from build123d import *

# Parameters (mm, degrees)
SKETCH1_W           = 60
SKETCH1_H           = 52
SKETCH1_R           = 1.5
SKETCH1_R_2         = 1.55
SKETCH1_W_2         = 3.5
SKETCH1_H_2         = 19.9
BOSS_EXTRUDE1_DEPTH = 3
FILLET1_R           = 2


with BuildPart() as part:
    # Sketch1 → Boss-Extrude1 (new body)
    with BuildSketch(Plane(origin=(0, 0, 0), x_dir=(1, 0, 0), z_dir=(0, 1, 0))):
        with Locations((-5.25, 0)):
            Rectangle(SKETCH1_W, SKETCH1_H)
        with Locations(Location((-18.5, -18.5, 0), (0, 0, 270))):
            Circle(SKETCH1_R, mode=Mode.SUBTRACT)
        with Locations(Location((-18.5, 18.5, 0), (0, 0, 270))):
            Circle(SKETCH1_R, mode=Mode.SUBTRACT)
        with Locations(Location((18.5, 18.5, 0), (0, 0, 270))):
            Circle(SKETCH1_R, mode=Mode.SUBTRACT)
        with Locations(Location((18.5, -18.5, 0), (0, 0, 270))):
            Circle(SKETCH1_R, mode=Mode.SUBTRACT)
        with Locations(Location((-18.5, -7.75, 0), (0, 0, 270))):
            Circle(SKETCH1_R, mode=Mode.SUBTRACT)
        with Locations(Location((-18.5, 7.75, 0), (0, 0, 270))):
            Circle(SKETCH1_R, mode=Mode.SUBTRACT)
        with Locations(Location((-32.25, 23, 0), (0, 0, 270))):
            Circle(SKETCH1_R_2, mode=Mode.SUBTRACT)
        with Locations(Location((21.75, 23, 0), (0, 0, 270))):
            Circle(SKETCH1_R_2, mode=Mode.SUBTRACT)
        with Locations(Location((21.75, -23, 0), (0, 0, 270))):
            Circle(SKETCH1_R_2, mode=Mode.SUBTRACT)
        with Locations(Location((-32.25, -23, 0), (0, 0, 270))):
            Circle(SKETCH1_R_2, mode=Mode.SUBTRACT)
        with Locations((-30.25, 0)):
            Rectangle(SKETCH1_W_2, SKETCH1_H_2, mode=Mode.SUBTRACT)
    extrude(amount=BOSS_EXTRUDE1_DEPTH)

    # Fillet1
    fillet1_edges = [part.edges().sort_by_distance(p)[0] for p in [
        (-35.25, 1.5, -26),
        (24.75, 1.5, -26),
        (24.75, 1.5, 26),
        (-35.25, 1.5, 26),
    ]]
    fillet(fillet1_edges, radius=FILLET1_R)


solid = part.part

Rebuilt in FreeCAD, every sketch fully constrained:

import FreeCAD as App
import Part
import Sketcher
from FreeCAD import Vector


def edges_at(feature, points):
    """Names of the edges that pass closest to the given points."""
    edges = feature.Shape.Edges
    near = lambda p: min(range(len(edges)), key=lambda i: edges[i].distToShape(Part.Vertex(*p))[0])
    return sorted({f"Edge{near(p) + 1}" for p in points})

doc = App.newDocument("Part")
body = doc.addObject("PartDesign::Body", "Body")

# Sketch on XZ plane
sketch1 = body.newObject("Sketcher::SketchObject", "Sketch")
sketch1.AttachmentSupport = (doc.getObject("XZ_Plane"), [""])
sketch1.MapMode = "FlatFace"
sketch1.addGeometry([
    Part.LineSegment(Vector(-35.25, -26, 0), Vector(-35.25, 26, 0)),  # 0
    Part.LineSegment(Vector(-35.25, 26, 0), Vector(24.75, 26, 0)),  # 1
    Part.LineSegment(Vector(24.75, 26, 0), Vector(24.75, -26, 0)),  # 2
    Part.LineSegment(Vector(24.75, -26, 0), Vector(-35.25, -26, 0)),  # 3
    Part.Circle(Vector(-32.25, 23, 0), Vector(0, 0, 1), 1.55),  # 4
    Part.Circle(Vector(-18.5, 18.5, 0), Vector(0, 0, 1), 1.5),  # 5
    Part.Circle(Vector(-18.5, 7.75, 0), Vector(0, 0, 1), 1.5),  # 6
    Part.Circle(Vector(21.75, 23, 0), Vector(0, 0, 1), 1.55),  # 7
    Part.Circle(Vector(18.5, 18.5, 0), Vector(0, 0, 1), 1.5),  # 8
    Part.LineSegment(Vector(-28.5, 9.95, 0), Vector(-32, 9.95, 0)),  # 9
    Part.LineSegment(Vector(-32, 9.95, 0), Vector(-32, -9.95, 0)),  # 10
    Part.LineSegment(Vector(-32, -9.95, 0), Vector(-28.5, -9.95, 0)),  # 11
    Part.LineSegment(Vector(-28.5, -9.95, 0), Vector(-28.5, 9.95, 0)),  # 12
    Part.Circle(Vector(-18.5, -7.75, 0), Vector(0, 0, 1), 1.5),  # 13
    Part.Circle(Vector(-32.25, -23, 0), Vector(0, 0, 1), 1.55),  # 14
    Part.Circle(Vector(-18.5, -18.5, 0), Vector(0, 0, 1), 1.5),  # 15
    Part.Circle(Vector(18.5, -18.5, 0), Vector(0, 0, 1), 1.5),  # 16
    Part.Circle(Vector(21.75, -23, 0), Vector(0, 0, 1), 1.55),  # 17
], False)
sketch1.addConstraint([
    Sketcher.Constraint("Coincident", 0, 2, 1, 1),
    Sketcher.Constraint("Coincident", 1, 2, 2, 1),
    Sketcher.Constraint("Coincident", 2, 2, 3, 1),
    Sketcher.Constraint("Coincident", 3, 2, 0, 1),
    Sketcher.Constraint("Coincident", 9, 2, 10, 1),
    Sketcher.Constraint("Coincident", 10, 2, 11, 1),
    Sketcher.Constraint("Coincident", 11, 2, 12, 1),
    Sketcher.Constraint("Coincident", 12, 2, 9, 1),
    Sketcher.Constraint("Vertical", 0),
    Sketcher.Constraint("Horizontal", 1),
    Sketcher.Constraint("Vertical", 2),
    Sketcher.Constraint("Horizontal", 3),
    Sketcher.Constraint("Horizontal", 9),
    Sketcher.Constraint("Vertical", 10),
    Sketcher.Constraint("Horizontal", 11),
    Sketcher.Constraint("Vertical", 12),
    Sketcher.Constraint("Equal", 5, 6),
    Sketcher.Constraint("Equal", 4, 7),
    Sketcher.Constraint("Equal", 6, 8),
    Sketcher.Constraint("Equal", 8, 13),
    Sketcher.Constraint("Equal", 7, 14),
    Sketcher.Constraint("Equal", 13, 15),
    Sketcher.Constraint("Equal", 15, 16),
    Sketcher.Constraint("Equal", 14, 17),
    Sketcher.Constraint("Symmetric", 8, 3, 15, 3, -1, 1),
    Sketcher.Constraint("Symmetric", 5, 3, 16, 3, -1, 1),
    Sketcher.Constraint("Symmetric", 5, 3, 8, 3, -2),
    Sketcher.Constraint("Symmetric", 6, 3, 13, 3, -1),
    Sketcher.Constraint("Symmetric", 4, 3, 14, 3, -1),
    Sketcher.Constraint("Symmetric", 7, 3, 17, 3, -1),
    Sketcher.Constraint("Horizontal", 4, 3, 7, 3),
    Sketcher.Constraint("Vertical", 5, 3, 6, 3),
    Sketcher.Constraint("Diameter", 5, 3.0),
    Sketcher.Constraint("Diameter", 4, 3.1),
    Sketcher.Constraint("DistanceX", 1, 1, 1, 2, 60.0),
    Sketcher.Constraint("DistanceY", 0, 1, 0, 2, 52.0),
    Sketcher.Constraint("DistanceX", 9, 2, 9, 1, 3.5),
    Sketcher.Constraint("DistanceY", 10, 2, 10, 1, 19.9),
    Sketcher.Constraint("DistanceY", -1, 1, 4, 3, 23.0),
    Sketcher.Constraint("DistanceY", -1, 1, 0, 2, 26.0),
    Sketcher.Constraint("DistanceX", 9, 2, -1, 1, 32.0),
    Sketcher.Constraint("DistanceX", 4, 3, 7, 3, 54.0),
    Sketcher.Constraint("DistanceX", 5, 3, 8, 3, 37.0),
    Sketcher.Constraint("DistanceY", 15, 3, 5, 3, 37.0),
    Sketcher.Constraint("DistanceX", 0, 2, 4, 3, 3.0),
    Sketcher.Constraint("DistanceY", 13, 3, 6, 3, 15.5),
    Sketcher.Constraint("DistanceY", 6, 3, 9, 2, 2.2),
    Sketcher.Constraint("DistanceX", 4, 3, -1, 1, 32.25),
])
pad1 = body.newObject("PartDesign::Pad", "Pad")
pad1.Profile = sketch1
pad1.Length = 3
pad1.Reversed = True
doc.recompute()

fillet = body.newObject("PartDesign::Fillet", "Fillet")
fillet.Base = (pad1, edges_at(pad1, [
    (-35.25, 1.5, -26),
    (24.75, 1.5, -26),
    (24.75, 1.5, 26),
    (-35.25, 1.5, 26),
]))
fillet.Radius = 2

doc.recompute()
